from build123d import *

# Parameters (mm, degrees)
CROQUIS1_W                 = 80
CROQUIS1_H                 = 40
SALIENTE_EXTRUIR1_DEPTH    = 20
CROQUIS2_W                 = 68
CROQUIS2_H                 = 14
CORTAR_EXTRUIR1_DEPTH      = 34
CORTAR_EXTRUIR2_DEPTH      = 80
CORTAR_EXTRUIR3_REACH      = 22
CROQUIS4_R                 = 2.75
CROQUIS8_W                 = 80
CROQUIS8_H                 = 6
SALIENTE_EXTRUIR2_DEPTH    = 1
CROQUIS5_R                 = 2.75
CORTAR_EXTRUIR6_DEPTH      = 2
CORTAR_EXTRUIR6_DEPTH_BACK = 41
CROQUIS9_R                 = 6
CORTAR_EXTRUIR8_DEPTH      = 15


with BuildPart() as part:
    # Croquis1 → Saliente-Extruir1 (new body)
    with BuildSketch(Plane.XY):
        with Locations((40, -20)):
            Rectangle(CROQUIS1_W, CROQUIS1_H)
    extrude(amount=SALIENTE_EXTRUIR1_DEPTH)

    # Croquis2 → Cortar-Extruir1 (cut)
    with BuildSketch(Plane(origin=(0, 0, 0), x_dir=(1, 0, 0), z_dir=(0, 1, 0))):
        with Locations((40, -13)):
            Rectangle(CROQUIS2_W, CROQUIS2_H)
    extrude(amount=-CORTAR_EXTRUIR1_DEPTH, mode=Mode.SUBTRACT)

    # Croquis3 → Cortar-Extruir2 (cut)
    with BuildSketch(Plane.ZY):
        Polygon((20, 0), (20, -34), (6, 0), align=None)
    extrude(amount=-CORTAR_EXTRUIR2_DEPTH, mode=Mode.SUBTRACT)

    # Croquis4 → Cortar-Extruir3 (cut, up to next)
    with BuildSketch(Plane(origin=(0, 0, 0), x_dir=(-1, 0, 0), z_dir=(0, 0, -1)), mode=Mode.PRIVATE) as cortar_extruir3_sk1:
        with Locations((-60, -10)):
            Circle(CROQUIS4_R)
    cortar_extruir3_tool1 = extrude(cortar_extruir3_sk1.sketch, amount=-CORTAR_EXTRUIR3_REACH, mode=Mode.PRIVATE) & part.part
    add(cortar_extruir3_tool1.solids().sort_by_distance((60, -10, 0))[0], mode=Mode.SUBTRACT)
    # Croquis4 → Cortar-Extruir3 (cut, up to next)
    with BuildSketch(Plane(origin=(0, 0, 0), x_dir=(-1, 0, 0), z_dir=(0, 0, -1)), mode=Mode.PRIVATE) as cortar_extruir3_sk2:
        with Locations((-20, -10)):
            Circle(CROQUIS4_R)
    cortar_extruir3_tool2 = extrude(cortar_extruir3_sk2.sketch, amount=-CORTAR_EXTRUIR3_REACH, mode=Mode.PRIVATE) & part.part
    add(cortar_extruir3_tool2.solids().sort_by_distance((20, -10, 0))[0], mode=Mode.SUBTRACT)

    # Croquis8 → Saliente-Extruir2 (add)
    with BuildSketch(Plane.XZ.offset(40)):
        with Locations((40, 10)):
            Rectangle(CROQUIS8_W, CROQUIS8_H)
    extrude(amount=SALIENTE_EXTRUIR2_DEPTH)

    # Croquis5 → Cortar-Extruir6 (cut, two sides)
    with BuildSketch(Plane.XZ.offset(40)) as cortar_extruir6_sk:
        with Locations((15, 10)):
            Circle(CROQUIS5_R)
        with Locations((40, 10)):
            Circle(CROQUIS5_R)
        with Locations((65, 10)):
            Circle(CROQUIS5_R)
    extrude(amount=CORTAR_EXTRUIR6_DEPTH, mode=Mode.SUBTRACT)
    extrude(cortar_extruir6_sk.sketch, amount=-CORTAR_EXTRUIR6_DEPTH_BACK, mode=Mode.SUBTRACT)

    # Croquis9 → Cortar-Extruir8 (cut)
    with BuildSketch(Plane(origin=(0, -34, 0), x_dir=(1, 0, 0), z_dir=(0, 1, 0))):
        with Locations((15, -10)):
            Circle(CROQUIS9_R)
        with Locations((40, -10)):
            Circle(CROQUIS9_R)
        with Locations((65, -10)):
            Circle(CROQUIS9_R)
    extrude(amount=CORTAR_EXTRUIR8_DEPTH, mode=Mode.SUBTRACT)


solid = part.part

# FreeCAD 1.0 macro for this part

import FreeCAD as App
import Part
import Sketcher
from FreeCAD import Vector


def add_polygon(sketch, points):
    """Adds a closed chain of lines whose ends are joined by coincident constraints."""
    first, n = sketch.GeometryCount, len(points)
    for a, b in zip(points, points[1:] + points[:1]):
        sketch.addGeometry(Part.LineSegment(App.Vector(*a, 0), App.Vector(*b, 0)), False)
    for i in range(n):
        sketch.addConstraint(Sketcher.Constraint("Coincident", first + i, 2, first + (i + 1) % n, 1))

doc = App.newDocument("Part")
body = doc.addObject("PartDesign::Body", "Body")

sketch1 = doc.addObject("Sketcher::SketchObject", "Sketch")
body.addObject(sketch1)
sketch1.AttachmentSupport = (doc.XY_Plane, [""])
sketch1.MapMode = "FlatFace"
add_polygon(sketch1, [(0, 0), (0, -40), (80, -40), (80, 0)])
sketch1.addConstraint([
    Sketcher.Constraint("Vertical", 0),
    Sketcher.Constraint("Horizontal", 1),
    Sketcher.Constraint("Vertical", 2),
    Sketcher.Constraint("Horizontal", 3),
    Sketcher.Constraint("Coincident", 3, 2, -1, 1),
    Sketcher.Constraint("DistanceX", 1, 1, 1, 2, 80.0),
    Sketcher.Constraint("DistanceY", 0, 2, 0, 1, 40.0),
])
pad1 = doc.addObject("PartDesign::Pad", "Pad")
body.addObject(pad1)
pad1.Profile = sketch1
pad1.Length = 20

sketch2 = doc.addObject("Sketcher::SketchObject", "Sketch001")
body.addObject(sketch2)
sketch2.AttachmentSupport = (doc.XZ_Plane, [""])
sketch2.MapMode = "FlatFace"
add_polygon(sketch2, [(6, 6), (6, 20), (74, 20), (74, 6)])
sketch2.addConstraint([
    Sketcher.Constraint("Vertical", 0),
    Sketcher.Constraint("Horizontal", 1),
    Sketcher.Constraint("Vertical", 2),
    Sketcher.Constraint("Horizontal", 3),
    Sketcher.Constraint("DistanceX", 1, 1, 1, 2, 68.0),
    Sketcher.Constraint("DistanceY", 0, 1, 0, 2, 14.0),
    Sketcher.Constraint("DistanceX", -1, 1, 0, 2, 6.0),
    Sketcher.Constraint("DistanceY", -1, 1, 0, 2, 20.0),
])
pocket1 = doc.addObject("PartDesign::Pocket", "Pocket")
body.addObject(pocket1)
pocket1.Profile = sketch2
pocket1.Length = 34
pocket1.Reversed = True

sketch3 = doc.addObject("Sketcher::SketchObject", "Sketch002")
body.addObject(sketch3)
sketch3.AttachmentSupport = (doc.YZ_Plane, [""])
sketch3.MapMode = "FlatFace"
add_polygon(sketch3, [(-34, 20), (0, 20), (0, 6)])
sketch3.addConstraint([
    Sketcher.Constraint("Horizontal", 0),
    Sketcher.Constraint("Vertical", 1),
    Sketcher.Constraint("PointOnObject", 0, 2, -2),
    Sketcher.Constraint("DistanceX", 0, 1, 0, 2, 34.0),
    Sketcher.Constraint("DistanceY", 1, 2, 1, 1, 14.0),
    Sketcher.Constraint("DistanceY", -1, 1, 0, 2, 20.0),
])
pocket2 = doc.addObject("PartDesign::Pocket", "Pocket001")
body.addObject(pocket2)
pocket2.Profile = sketch3
pocket2.Length = 80
pocket2.Reversed = True

sketch4 = doc.addObject("Sketcher::SketchObject", "Sketch003")
body.addObject(sketch4)
sketch4.AttachmentSupport = (doc.XY_Plane, [""])
sketch4.MapMode = "FlatFace"
sketch4.addGeometry(Part.Circle(Vector(60, -10, 0), Vector(0, 0, 1), 2.8), False)
sketch4.addConstraint([
    Sketcher.Constraint("Diameter", 0, 5.5),
    Sketcher.Constraint("DistanceX", -1, 1, 0, 3, 60.0),
    Sketcher.Constraint("DistanceY", 0, 3, -1, 1, 10.0),
])
pocket3 = doc.addObject("PartDesign::Pocket", "Pocket002")
body.addObject(pocket3)
pocket3.Profile = sketch4
pocket3.Type = "UpToFirst"
pocket3.Reversed = True

sketch5 = doc.addObject("Sketcher::SketchObject", "Sketch004")
body.addObject(sketch5)
sketch5.AttachmentSupport = (doc.XY_Plane, [""])
sketch5.MapMode = "FlatFace"
sketch5.addGeometry(Part.Circle(Vector(20, -10, 0), Vector(0, 0, 1), 2.8), False)
sketch5.addConstraint([
    Sketcher.Constraint("Diameter", 0, 5.5),
    Sketcher.Constraint("DistanceX", -1, 1, 0, 3, 20.0),
    Sketcher.Constraint("DistanceY", 0, 3, -1, 1, 10.0),
])
pocket4 = doc.addObject("PartDesign::Pocket", "Pocket003")
body.addObject(pocket4)
pocket4.Profile = sketch5
pocket4.Type = "UpToFirst"
pocket4.Reversed = True

sketch6 = doc.addObject("Sketcher::SketchObject", "Sketch005")
body.addObject(sketch6)
sketch6.AttachmentSupport = (doc.XZ_Plane, [""])
sketch6.MapMode = "FlatFace"
sketch6.AttachmentOffset = App.Placement(Vector(0, 0, 40), App.Rotation())
add_polygon(sketch6, [(0, 13), (0, 7), (80, 7), (80, 13)])
sketch6.addConstraint([
    Sketcher.Constraint("Vertical", 0),
    Sketcher.Constraint("Horizontal", 1),
    Sketcher.Constraint("Vertical", 2),
    Sketcher.Constraint("Horizontal", 3),
    Sketcher.Constraint("PointOnObject", 0, 2, -2),
    Sketcher.Constraint("DistanceX", 1, 1, 1, 2, 80.0),
    Sketcher.Constraint("DistanceY", 0, 2, 0, 1, 6.0),
    Sketcher.Constraint("DistanceY", -1, 1, 0, 2, 7.0),
])
pad2 = doc.addObject("PartDesign::Pad", "Pad001")
body.addObject(pad2)
pad2.Profile = sketch6
pad2.Length = 1

sketch7 = doc.addObject("Sketcher::SketchObject", "Sketch006")
body.addObject(sketch7)
sketch7.AttachmentSupport = (doc.XZ_Plane, [""])
sketch7.MapMode = "FlatFace"
sketch7.AttachmentOffset = App.Placement(Vector(0, 0, 40), App.Rotation())
sketch7.addGeometry([
    Part.Circle(Vector(15, 10, 0), Vector(0, 0, 1), 2.8),
    Part.Circle(Vector(40, 10, 0), Vector(0, 0, 1), 2.8),
    Part.Circle(Vector(65, 10, 0), Vector(0, 0, 1), 2.8),
], False)
sketch7.addConstraint([
    Sketcher.Constraint("Equal", 0, 1),
    Sketcher.Constraint("Equal", 1, 2),
    Sketcher.Constraint("Horizontal", 0, 3, 1, 3),
    Sketcher.Constraint("Horizontal", 1, 3, 2, 3),
    Sketcher.Constraint("Diameter", 0, 5.5),
    Sketcher.Constraint("DistanceX", -1, 1, 0, 3, 15.0),
    Sketcher.Constraint("DistanceY", -1, 1, 0, 3, 10.0),
    Sketcher.Constraint("DistanceX", -1, 1, 1, 3, 40.0),
    Sketcher.Constraint("DistanceX", -1, 1, 2, 3, 65.0),
])
pocket5 = doc.addObject("PartDesign::Pocket", "Pocket004")
body.addObject(pocket5)
pocket5.Profile = sketch7
pocket5.Type = "ThroughAll"
pocket5.Midplane = True

sketch8 = doc.addObject("Sketcher::SketchObject", "Sketch007")
body.addObject(sketch8)
sketch8.AttachmentSupport = (doc.XZ_Plane, [""])
sketch8.MapMode = "FlatFace"
sketch8.AttachmentOffset = App.Placement(Vector(0, 0, 34), App.Rotation())
sketch8.addGeometry([
    Part.Circle(Vector(15, 10, 0), Vector(0, 0, 1), 6),
    Part.Circle(Vector(40, 10, 0), Vector(0, 0, 1), 6),
    Part.Circle(Vector(65, 10, 0), Vector(0, 0, 1), 6),
], False)
sketch8.addConstraint([
    Sketcher.Constraint("Equal", 0, 1),
    Sketcher.Constraint("Equal", 1, 2),
    Sketcher.Constraint("Horizontal", 0, 3, 1, 3),
    Sketcher.Constraint("Horizontal", 1, 3, 2, 3),
    Sketcher.Constraint("Diameter", 0, 12.0),
    Sketcher.Constraint("DistanceX", -1, 1, 0, 3, 15.0),
    Sketcher.Constraint("DistanceY", -1, 1, 0, 3, 10.0),
    Sketcher.Constraint("DistanceX", -1, 1, 1, 3, 40.0),
    Sketcher.Constraint("DistanceX", -1, 1, 2, 3, 65.0),
])
pocket6 = doc.addObject("PartDesign::Pocket", "Pocket005")
body.addObject(pocket6)
pocket6.Profile = sketch8
pocket6.Length = 15

doc.recompute()
